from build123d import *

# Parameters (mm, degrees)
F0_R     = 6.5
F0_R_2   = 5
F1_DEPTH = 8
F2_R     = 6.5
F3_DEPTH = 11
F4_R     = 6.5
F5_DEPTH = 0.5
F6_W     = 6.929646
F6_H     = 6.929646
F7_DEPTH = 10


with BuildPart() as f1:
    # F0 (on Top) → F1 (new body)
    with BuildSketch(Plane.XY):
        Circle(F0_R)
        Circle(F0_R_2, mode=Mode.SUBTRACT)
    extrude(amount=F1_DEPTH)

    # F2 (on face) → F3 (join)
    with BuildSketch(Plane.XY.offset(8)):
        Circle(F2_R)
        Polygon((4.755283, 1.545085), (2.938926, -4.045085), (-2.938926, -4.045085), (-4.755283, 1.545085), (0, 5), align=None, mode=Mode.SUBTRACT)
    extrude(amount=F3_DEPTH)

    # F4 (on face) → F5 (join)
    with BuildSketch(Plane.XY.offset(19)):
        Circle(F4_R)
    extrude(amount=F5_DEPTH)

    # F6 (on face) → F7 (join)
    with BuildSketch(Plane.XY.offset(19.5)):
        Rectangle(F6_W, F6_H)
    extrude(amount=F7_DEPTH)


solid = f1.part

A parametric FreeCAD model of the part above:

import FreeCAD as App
import Part
import Sketcher
Q = App.Units.Quantity

doc = App.newDocument("Part")
body = doc.addObject("PartDesign::Body", "Body")

sketch1 = body.newObject("Sketcher::SketchObject", "Sketch")
sketch1.AttachmentSupport = (doc.getObject("XY_Plane"), [""])
sketch1.MapMode = "FlatFace"
sketch1.addGeometry([
    Part.Circle(App.Vector(0, 0, 0), App.Vector(0, 0, 1), 6),
    Part.Circle(App.Vector(0, 0, 0), App.Vector(0, 0, 1), 5),
], False)
sketch1.addConstraint([
    Sketcher.Constraint("Coincident", 0, 3, -1, 1),
    Sketcher.Constraint("Coincident", 1, 3, -1, 1),
    Sketcher.Constraint("Diameter", 0, 13.0),
    Sketcher.Constraint("Diameter", 1, 10.0),
])
pad1 = body.newObject("PartDesign::Pad", "Pad")
pad1.Profile = sketch1
pad1.Length = 8

sketch2 = body.newObject("Sketcher::SketchObject", "Sketch001")
sketch2.AttachmentSupport = (doc.getObject("XY_Plane"), [""])
sketch2.MapMode = "FlatFace"
sketch2.AttachmentOffset = App.Placement(App.Vector(0, 0, 8), App.Rotation())
sketch2.addGeometry([
    Part.Circle(App.Vector(0, 0, 0), App.Vector(0, 0, 1), 6),
    Part.LineSegment(App.Vector(0, 5, 0), App.Vector(5, 2, 0)),
    Part.LineSegment(App.Vector(5, 2, 0), App.Vector(3, -4, 0)),
    Part.LineSegment(App.Vector(3, -4, 0), App.Vector(-3, -4, 0)),
    Part.LineSegment(App.Vector(-3, -4, 0), App.Vector(-5, 2, 0)),
    Part.LineSegment(App.Vector(-5, 2, 0), App.Vector(0, 5, 0)),
], False)
sketch2.addConstraint([
    Sketcher.Constraint("Coincident", 1, 2, 2, 1),
    Sketcher.Constraint("Coincident", 2, 2, 3, 1),
    Sketcher.Constraint("Coincident", 3, 2, 4, 1),
    Sketcher.Constraint("Coincident", 4, 2, 5, 1),
    Sketcher.Constraint("Coincident", 5, 2, 1, 1),
    Sketcher.Constraint("Horizontal", 3),
    Sketcher.Constraint("Coincident", 0, 3, -1, 1),
    Sketcher.Constraint("Symmetric", 1, 2, 4, 2, -2),
    Sketcher.Constraint("PointOnObject", 5, 2, -2),
    Sketcher.Constraint("Equal", 1, 2),
    Sketcher.Constraint("Equal", 2, 4),
    Sketcher.Constraint("Diameter", 0, 13.0),
    Sketcher.Constraint("Angle", 1, Q("-35.999997 deg")),
    Sketcher.Constraint("Angle", 2, Q("-108.000006 deg")),
    Sketcher.Constraint("DistanceY", -1, 1, 5, 2, 5.0),
    Sketcher.Constraint("DistanceX", 3, 2, 3, 1, 5.877852),
])
pad2 = body.newObject("PartDesign::Pad", "Pad001")
pad2.Profile = sketch2
pad2.Length = 11

sketch3 = body.newObject("Sketcher::SketchObject", "Sketch002")
sketch3.AttachmentSupport = (doc.getObject("XY_Plane"), [""])
sketch3.MapMode = "FlatFace"
sketch3.AttachmentOffset = App.Placement(App.Vector(0, 0, 19), App.Rotation())
sketch3.addGeometry(Part.Circle(App.Vector(0, 0, 0), App.Vector(0, 0, 1), 6), False)
sketch3.addConstraint([
    Sketcher.Constraint("Coincident", 0, 3, -1, 1),
    Sketcher.Constraint("Diameter", 0, 13.0),
])
pad3 = body.newObject("PartDesign::Pad", "Pad002")
pad3.Profile = sketch3
pad3.Length = 0.5

sketch4 = body.newObject("Sketcher::SketchObject", "Sketch003")
sketch4.AttachmentSupport = (doc.getObject("XY_Plane"), [""])
sketch4.MapMode = "FlatFace"
sketch4.AttachmentOffset = App.Placement(App.Vector(0, 0, 19.5), App.Rotation())
sketch4.addGeometry([
    Part.LineSegment(App.Vector(-3, 3, 0), App.Vector(-3, -3, 0)),
    Part.LineSegment(App.Vector(-3, -3, 0), App.Vector(3, -3, 0)),
    Part.LineSegment(App.Vector(3, -3, 0), App.Vector(3, 3, 0)),
    Part.LineSegment(App.Vector(3, 3, 0), App.Vector(-3, 3, 0)),
], False)
sketch4.addConstraint([
    Sketcher.Constraint("Coincident", 0, 2, 1, 1),
    Sketcher.Constraint("Coincident", 1, 2, 2, 1),
    Sketcher.Constraint("Coincident", 2, 2, 3, 1),
    Sketcher.Constraint("Coincident", 3, 2, 0, 1),
    Sketcher.Constraint("Vertical", 0),
    Sketcher.Constraint("Horizontal", 1),
    Sketcher.Constraint("Vertical", 2),
    Sketcher.Constraint("Horizontal", 3),
    Sketcher.Constraint("Symmetric", 0, 2, 2, 2, -1, 1),
    Sketcher.Constraint("Equal", 3, 0),
    Sketcher.Constraint("DistanceX", 1, 1, 1, 2, 6.929646),
])
pad4 = body.newObject("PartDesign::Pad", "Pad003")
pad4.Profile = sketch4
pad4.Length = 10

doc.recompute()
